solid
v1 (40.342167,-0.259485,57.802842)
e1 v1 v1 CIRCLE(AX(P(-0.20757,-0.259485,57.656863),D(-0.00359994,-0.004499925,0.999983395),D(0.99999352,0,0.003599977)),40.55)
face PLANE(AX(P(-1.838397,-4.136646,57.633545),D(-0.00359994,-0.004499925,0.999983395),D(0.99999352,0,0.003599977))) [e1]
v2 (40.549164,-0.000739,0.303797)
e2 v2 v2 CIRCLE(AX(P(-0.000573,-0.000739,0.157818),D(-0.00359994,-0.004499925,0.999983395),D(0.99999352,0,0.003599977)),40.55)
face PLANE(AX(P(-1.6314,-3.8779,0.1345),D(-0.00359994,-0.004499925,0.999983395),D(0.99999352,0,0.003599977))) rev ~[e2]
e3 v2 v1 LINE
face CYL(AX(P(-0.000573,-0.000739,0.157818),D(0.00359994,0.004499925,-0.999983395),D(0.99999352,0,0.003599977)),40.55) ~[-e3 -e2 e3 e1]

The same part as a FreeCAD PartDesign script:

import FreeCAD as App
import Part
import Sketcher

doc = App.newDocument("Part")
params = doc.addObject("Spreadsheet::Sheet", "Params")
for row, (alias, value) in enumerate([
    ("sketch1_diameter", "81.1 mm"),
    ("pad1_length", "57.5 mm"),
], start=1):
    params.set(f"A{row}", alias)
    params.set(f"B{row}", "=" + value)
    params.setAlias(f"B{row}", alias)

body = doc.addObject("PartDesign::Body", "Body")

# Sketch on an angled plane
sketch1 = body.newObject("Sketcher::SketchObject", "Sketch")
sketch1.Placement = App.Placement(App.Vector(-1.6314, -3.8779, 0.1345), App.Rotation(App.Vector(0.99999352, 0, 0.003599977), App.Vector(-0.0000162, 0.999989875, 0.004499896), App.Vector(-0.00359994, -0.004499925, 0.999983395), "ZXY"))
sketch1.addGeometry(Part.Circle(App.Vector(1.6309, 3.8772, 0), App.Vector(0, 0, 1), 40.55), False)
sketch1.addConstraint([
    Sketcher.Constraint("Diameter", 0, 81.1),
    Sketcher.Constraint("DistanceX", -1, 1, 0, 3, 1.631),
    Sketcher.Constraint("DistanceY", -1, 1, 0, 3, 3.8772),
])
sketch1.setExpression("Constraints[0]", "Params.sketch1_diameter")
pad1 = body.newObject("PartDesign::Pad", "Pad")
pad1.Profile = sketch1
pad1.setExpression("Length", "Params.pad1_length")

doc.recompute()
